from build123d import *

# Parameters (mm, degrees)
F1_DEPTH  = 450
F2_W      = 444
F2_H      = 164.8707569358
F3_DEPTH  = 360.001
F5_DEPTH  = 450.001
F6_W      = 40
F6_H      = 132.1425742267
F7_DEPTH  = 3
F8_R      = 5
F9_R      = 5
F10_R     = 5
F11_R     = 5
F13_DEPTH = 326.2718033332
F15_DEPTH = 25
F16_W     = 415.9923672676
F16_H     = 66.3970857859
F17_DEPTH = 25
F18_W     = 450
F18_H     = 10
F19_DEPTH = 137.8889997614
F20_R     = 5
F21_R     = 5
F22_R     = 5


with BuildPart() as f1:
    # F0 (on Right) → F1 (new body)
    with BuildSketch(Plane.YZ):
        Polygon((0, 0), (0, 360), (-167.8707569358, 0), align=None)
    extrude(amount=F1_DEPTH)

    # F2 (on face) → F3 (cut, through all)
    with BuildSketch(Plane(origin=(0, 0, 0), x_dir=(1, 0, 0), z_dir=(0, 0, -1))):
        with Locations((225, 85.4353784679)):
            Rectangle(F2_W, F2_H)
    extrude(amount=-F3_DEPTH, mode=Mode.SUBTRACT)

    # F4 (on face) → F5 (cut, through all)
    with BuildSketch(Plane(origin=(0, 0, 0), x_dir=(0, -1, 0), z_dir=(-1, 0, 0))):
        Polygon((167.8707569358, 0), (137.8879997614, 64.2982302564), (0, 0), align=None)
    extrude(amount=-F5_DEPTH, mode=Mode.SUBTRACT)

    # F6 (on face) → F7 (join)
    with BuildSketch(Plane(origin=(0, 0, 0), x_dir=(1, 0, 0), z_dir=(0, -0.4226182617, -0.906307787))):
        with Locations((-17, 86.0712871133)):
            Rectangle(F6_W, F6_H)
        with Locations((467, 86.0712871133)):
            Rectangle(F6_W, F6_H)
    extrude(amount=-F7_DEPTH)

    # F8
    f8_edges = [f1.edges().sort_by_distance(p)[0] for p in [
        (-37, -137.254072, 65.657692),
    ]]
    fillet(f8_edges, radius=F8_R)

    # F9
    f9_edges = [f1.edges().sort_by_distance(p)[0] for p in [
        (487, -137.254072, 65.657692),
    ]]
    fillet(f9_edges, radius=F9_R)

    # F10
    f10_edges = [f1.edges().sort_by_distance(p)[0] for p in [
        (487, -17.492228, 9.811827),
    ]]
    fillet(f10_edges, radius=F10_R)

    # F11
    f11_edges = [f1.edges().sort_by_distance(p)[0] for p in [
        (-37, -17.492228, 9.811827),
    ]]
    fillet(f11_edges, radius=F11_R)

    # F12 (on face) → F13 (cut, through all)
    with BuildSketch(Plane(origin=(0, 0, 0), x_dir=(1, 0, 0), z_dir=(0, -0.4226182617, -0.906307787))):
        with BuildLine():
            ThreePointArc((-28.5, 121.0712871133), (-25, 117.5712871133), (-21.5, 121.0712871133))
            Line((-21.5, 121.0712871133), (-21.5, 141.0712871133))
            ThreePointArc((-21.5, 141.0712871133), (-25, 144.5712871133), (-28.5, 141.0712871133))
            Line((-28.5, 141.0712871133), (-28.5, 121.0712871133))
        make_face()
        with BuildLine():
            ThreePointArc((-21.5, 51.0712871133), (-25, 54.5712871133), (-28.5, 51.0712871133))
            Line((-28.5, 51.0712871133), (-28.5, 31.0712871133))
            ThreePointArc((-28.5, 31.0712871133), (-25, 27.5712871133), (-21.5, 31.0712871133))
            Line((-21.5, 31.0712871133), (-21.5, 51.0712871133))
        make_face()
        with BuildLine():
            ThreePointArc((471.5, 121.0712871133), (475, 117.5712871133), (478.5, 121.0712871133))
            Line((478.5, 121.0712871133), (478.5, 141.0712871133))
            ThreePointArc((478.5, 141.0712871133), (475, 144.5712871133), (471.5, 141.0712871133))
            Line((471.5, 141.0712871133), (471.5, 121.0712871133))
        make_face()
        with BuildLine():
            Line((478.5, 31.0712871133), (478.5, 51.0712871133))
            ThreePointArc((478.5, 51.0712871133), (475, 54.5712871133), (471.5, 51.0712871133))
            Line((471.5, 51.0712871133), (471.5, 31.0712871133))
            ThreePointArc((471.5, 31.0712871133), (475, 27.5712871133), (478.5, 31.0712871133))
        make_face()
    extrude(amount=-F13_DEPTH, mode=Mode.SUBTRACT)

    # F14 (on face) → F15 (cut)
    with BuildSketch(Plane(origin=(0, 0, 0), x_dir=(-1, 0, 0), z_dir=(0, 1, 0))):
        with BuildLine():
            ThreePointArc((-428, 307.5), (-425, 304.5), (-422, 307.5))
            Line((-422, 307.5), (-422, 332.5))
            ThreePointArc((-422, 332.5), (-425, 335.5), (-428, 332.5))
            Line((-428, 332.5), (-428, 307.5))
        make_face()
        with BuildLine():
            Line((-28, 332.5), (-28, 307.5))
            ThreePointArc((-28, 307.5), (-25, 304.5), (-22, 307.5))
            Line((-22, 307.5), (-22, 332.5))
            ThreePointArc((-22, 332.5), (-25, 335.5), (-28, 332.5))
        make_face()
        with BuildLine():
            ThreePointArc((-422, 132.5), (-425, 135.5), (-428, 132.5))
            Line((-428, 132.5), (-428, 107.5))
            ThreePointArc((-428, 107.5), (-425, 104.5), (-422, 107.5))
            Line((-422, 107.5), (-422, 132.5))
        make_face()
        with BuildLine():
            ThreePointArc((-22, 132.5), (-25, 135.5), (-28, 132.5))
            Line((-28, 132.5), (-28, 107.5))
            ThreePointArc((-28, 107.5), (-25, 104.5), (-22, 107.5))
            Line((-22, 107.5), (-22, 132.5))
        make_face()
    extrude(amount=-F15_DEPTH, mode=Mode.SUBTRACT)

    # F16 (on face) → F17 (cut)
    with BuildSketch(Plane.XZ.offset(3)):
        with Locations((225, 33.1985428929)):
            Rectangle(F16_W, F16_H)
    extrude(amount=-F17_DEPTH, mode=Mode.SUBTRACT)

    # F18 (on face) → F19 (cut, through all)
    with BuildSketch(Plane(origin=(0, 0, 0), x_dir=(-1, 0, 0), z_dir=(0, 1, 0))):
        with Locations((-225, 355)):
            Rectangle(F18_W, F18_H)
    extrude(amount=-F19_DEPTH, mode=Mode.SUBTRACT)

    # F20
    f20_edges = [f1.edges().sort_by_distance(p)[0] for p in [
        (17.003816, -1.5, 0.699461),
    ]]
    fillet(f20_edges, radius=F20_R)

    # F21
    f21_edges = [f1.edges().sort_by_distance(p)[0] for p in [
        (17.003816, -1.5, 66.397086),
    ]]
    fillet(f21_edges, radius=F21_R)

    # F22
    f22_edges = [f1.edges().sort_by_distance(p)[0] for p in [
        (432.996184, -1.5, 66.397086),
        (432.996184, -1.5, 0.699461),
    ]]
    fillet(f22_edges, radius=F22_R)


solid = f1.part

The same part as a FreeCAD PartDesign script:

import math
import FreeCAD as App
import Part
import Sketcher
Q = App.Units.Quantity


def edges_at(feature, points):
    """Names of the edges that pass closest to the given points."""
    edges = feature.Shape.Edges
    near = lambda p: min(range(len(edges)), key=lambda i: edges[i].distToShape(Part.Vertex(*p))[0])
    return sorted({f"Edge{near(p) + 1}" for p in points})


def add_polygon(sketch, points):
    """Adds a closed chain of lines whose ends are joined by coincident constraints."""
    first, n = sketch.GeometryCount, len(points)
    for a, b in zip(points, points[1:] + points[:1]):
        sketch.addGeometry(Part.LineSegment(App.Vector(*a, 0), App.Vector(*b, 0)), False)
    for i in range(n):
        sketch.addConstraint(Sketcher.Constraint("Coincident", first + i, 2, first + (i + 1) % n, 1))

doc = App.newDocument("Part")
body = doc.addObject("PartDesign::Body", "Body")

# Sketch on YZ plane
sketch1 = body.newObject("Sketcher::SketchObject", "Sketch")
sketch1.AttachmentSupport = (doc.getObject("YZ_Plane"), [""])
sketch1.MapMode = "FlatFace"
add_polygon(sketch1, [(0, 0), (0, 360), (-167.870757, 0)])  # lines 0-2
sketch1.addConstraint([
    Sketcher.Constraint("Vertical", 0),
    Sketcher.Constraint("Horizontal", 2),
    Sketcher.Constraint("Coincident", 2, 2, -1, 1),
    Sketcher.Constraint("DistanceY", 0, 1, 0, 2, 360.0),
    Sketcher.Constraint("Angle", 1, Q("-115 deg")),
])
pad1 = body.newObject("PartDesign::Pad", "Pad")
pad1.Profile = sketch1
pad1.Length = 450

# Sketch on XY plane
sketch2 = body.newObject("Sketcher::SketchObject", "Sketch001")
sketch2.AttachmentSupport = (doc.getObject("XY_Plane"), [""])
sketch2.MapMode = "FlatFace"
add_polygon(sketch2, [(3, -167.870757), (3, -3), (447, -3), (447, -167.870757)])  # lines 0-3
sketch2.addConstraint([
    Sketcher.Constraint("Vertical", 0),
    Sketcher.Constraint("Horizontal", 1),
    Sketcher.Constraint("Vertical", 2),
    Sketcher.Constraint("Horizontal", 3),
    Sketcher.Constraint("DistanceX", 1, 1, 1, 2, 444.0),
    Sketcher.Constraint("DistanceX", -1, 1, 0, 2, 3.0),
    Sketcher.Constraint("DistanceY", 0, 2, -1, 1, 3.0),
    Sketcher.Constraint("DistanceY", 0, 1, 0, 2, 164.870757),
])
pocket1 = body.newObject("PartDesign::Pocket", "Pocket")
pocket1.Profile = sketch2
pocket1.Type = "ThroughAll"
pocket1.Reversed = True

# Sketch on YZ plane
sketch3 = body.newObject("Sketcher::SketchObject", "Sketch002")
sketch3.AttachmentSupport = (doc.getObject("YZ_Plane"), [""])
sketch3.MapMode = "FlatFace"
add_polygon(sketch3, [(-167.870757, 0), (-137.888, 64.29823), (0, 0)])  # lines 0-2
sketch3.addConstraint([
    Sketcher.Constraint("Horizontal", 2),
    Sketcher.Constraint("Coincident", 1, 2, -1, 1),
    Sketcher.Constraint("Perpendicular", 0, 1),
    Sketcher.Constraint("Angle", 0, Q("65 deg")),
    Sketcher.Constraint("DistanceX", 0, 2, -1, 1, 137.888),
])
pocket2 = body.newObject("PartDesign::Pocket", "Pocket001")
pocket2.Profile = sketch3
pocket2.Type = "ThroughAll"
pocket2.Reversed = True

# Sketch on an angled plane
sketch4 = body.newObject("Sketcher::SketchObject", "Sketch003")
sketch4.Placement = App.Placement(App.Vector(0, 0, 0), App.Rotation(App.Vector(1, 0, 0), App.Vector(0, -0.906307787, 0.422618262), App.Vector(0, -0.422618262, -0.906307787), "ZXY"))
add_polygon(sketch4, [(-37, 152.142574), (-37, 20), (3, 20), (3, 152.142574)])  # lines 0-3
add_polygon(sketch4, [(447, 152.142574), (447, 20), (487, 20), (487, 152.142574)])  # lines 4-7
sketch4.addConstraint([
    Sketcher.Constraint("Vertical", 0),
    Sketcher.Constraint("Horizontal", 1),
    Sketcher.Constraint("Vertical", 2),
    Sketcher.Constraint("Horizontal", 3),
    Sketcher.Constraint("Vertical", 4),
    Sketcher.Constraint("Horizontal", 5),
    Sketcher.Constraint("Vertical", 6),
    Sketcher.Constraint("Horizontal", 7),
    Sketcher.Constraint("Horizontal", 1, 2, 4, 2),
    Sketcher.Constraint("Horizontal", 3, 2, 6, 2),
    Sketcher.Constraint("Equal", 3, 5),
    Sketcher.Constraint("DistanceX", 1, 1, 1, 2, 40.0),
    Sketcher.Constraint("DistanceX", 0, 2, -1, 1, 37.0),
    Sketcher.Constraint("DistanceY", -1, 1, 0, 2, 20.0),
    Sketcher.Constraint("DistanceX", -1, 1, 4, 2, 447.0),
    Sketcher.Constraint("DistanceY", 0, 2, 0, 1, 132.142574),
])
pad2 = body.newObject("PartDesign::Pad", "Pad001")
pad2.Profile = sketch4
pad2.Length = 3
pad2.Reversed = True
doc.recompute()

fillet = body.newObject("PartDesign::Fillet", "Fillet")
fillet.Base = (pad2, edges_at(pad2, [(-37, -137.254, 65.658)]))
fillet.Radius = 5
doc.recompute()

fillet2 = body.newObject("PartDesign::Fillet", "Fillet001")
fillet2.Base = (fillet, edges_at(fillet, [(487, -137.254, 65.658)]))
fillet2.Radius = 5
doc.recompute()

fillet3 = body.newObject("PartDesign::Fillet", "Fillet002")
fillet3.Base = (fillet2, edges_at(fillet2, [(487, -17.492, 9.812)]))
fillet3.Radius = 5
doc.recompute()

fillet4 = body.newObject("PartDesign::Fillet", "Fillet003")
fillet4.Base = (fillet3, edges_at(fillet3, [(-37, -17.492, 9.812)]))
fillet4.Radius = 5

# Sketch on an angled plane
sketch5 = body.newObject("Sketcher::SketchObject", "Sketch004")
sketch5.Placement = App.Placement(App.Vector(0, 0, 0), App.Rotation(App.Vector(1, 0, 0), App.Vector(0, -0.906307787, 0.422618262), App.Vector(0, -0.422618262, -0.906307787), "ZXY"))
sketch5.addGeometry([
    Part.ArcOfCircle(Part.Circle(App.Vector(-25, 121.071287, 0), App.Vector(0, 0, 1), 3.5), math.radians(180), math.radians(360)),  # 0
    Part.LineSegment(App.Vector(-21.5, 121.071287, 0), App.Vector(-21.5, 141.071287, 0)),  # 1
    Part.ArcOfCircle(Part.Circle(App.Vector(-25, 141.071287, 0), App.Vector(0, 0, 1), 3.5), math.radians(0), math.radians(180)),  # 2
    Part.LineSegment(App.Vector(-28.5, 141.071287, 0), App.Vector(-28.5, 121.071287, 0)),  # 3
    Part.ArcOfCircle(Part.Circle(App.Vector(-25, 51.071287, 0), App.Vector(0, 0, 1), 3.5), math.radians(0), math.radians(180)),  # 4
    Part.LineSegment(App.Vector(-28.5, 51.071287, 0), App.Vector(-28.5, 31.071287, 0)),  # 5
    Part.ArcOfCircle(Part.Circle(App.Vector(-25, 31.071287, 0), App.Vector(0, 0, 1), 3.5), math.radians(180), math.radians(360)),  # 6
    Part.LineSegment(App.Vector(-21.5, 31.071287, 0), App.Vector(-21.5, 51.071287, 0)),  # 7
    Part.ArcOfCircle(Part.Circle(App.Vector(475, 121.071287, 0), App.Vector(0, 0, 1), 3.5), math.radians(180), math.radians(360)),  # 8
    Part.LineSegment(App.Vector(478.5, 121.071287, 0), App.Vector(478.5, 141.071287, 0)),  # 9
    Part.ArcOfCircle(Part.Circle(App.Vector(475, 141.071287, 0), App.Vector(0, 0, 1), 3.5), math.radians(0), math.radians(180)),  # 10
    Part.LineSegment(App.Vector(471.5, 141.071287, 0), App.Vector(471.5, 121.071287, 0)),  # 11
    Part.LineSegment(App.Vector(478.5, 31.071287, 0), App.Vector(478.5, 51.071287, 0)),  # 12
    Part.ArcOfCircle(Part.Circle(App.Vector(475, 51.071287, 0), App.Vector(0, 0, 1), 3.5), math.radians(0), math.radians(180)),  # 13
    Part.LineSegment(App.Vector(471.5, 51.071287, 0), App.Vector(471.5, 31.071287, 0)),  # 14
    Part.ArcOfCircle(Part.Circle(App.Vector(475, 31.071287, 0), App.Vector(0, 0, 1), 3.5), math.radians(180), math.radians(360)),  # 15
], False)
sketch5.addConstraint([
    Sketcher.Constraint("Tangent", 0, 2, 1, 1),
    Sketcher.Constraint("Tangent", 1, 2, 2, 1),
    Sketcher.Constraint("Tangent", 2, 2, 3, 1),
    Sketcher.Constraint("Tangent", 3, 2, 0, 1),
    Sketcher.Constraint("Tangent", 4, 2, 5, 1),
    Sketcher.Constraint("Tangent", 5, 2, 6, 1),
    Sketcher.Constraint("Tangent", 6, 2, 7, 1),
    Sketcher.Constraint("Tangent", 7, 2, 4, 1),
    Sketcher.Constraint("Tangent", 8, 2, 9, 1),
    Sketcher.Constraint("Tangent", 9, 2, 10, 1),
    Sketcher.Constraint("Tangent", 10, 2, 11, 1),
    Sketcher.Constraint("Tangent", 11, 2, 8, 1),
    Sketcher.Constraint("Tangent", 12, 2, 13, 1),
    Sketcher.Constraint("Tangent", 13, 2, 14, 1),
    Sketcher.Constraint("Tangent", 14, 2, 15, 1),
    Sketcher.Constraint("Tangent", 15, 2, 12, 1),
    Sketcher.Constraint("Vertical", 1),
    Sketcher.Constraint("Vertical", 3),
    Sketcher.Constraint("Vertical", 5),
    Sketcher.Constraint("Vertical", 7),
    Sketcher.Constraint("Vertical", 9),
    Sketcher.Constraint("Vertical", 11),
    Sketcher.Constraint("Vertical", 12),
    Sketcher.Constraint("Vertical", 14),
    Sketcher.Constraint("Equal", 2, 4),
    Sketcher.Constraint("Equal", 6, 8),
    Sketcher.Constraint("Equal", 10, 13),
    Sketcher.Constraint("Horizontal", 0, 3, 8, 3),
    Sketcher.Constraint("Horizontal", 2, 3, 10, 3),
    Sketcher.Constraint("Horizontal", 4, 3, 13, 3),
    Sketcher.Constraint("Horizontal", 6, 3, 15, 3),
    Sketcher.Constraint("Vertical", 2, 3, 4, 3),
    Sketcher.Constraint("Vertical", 10, 3, 13, 3),
    Sketcher.Constraint("Equal", 3, 5),
    Sketcher.Constraint("Radius", 0, 3.5),
    Sketcher.Constraint("DistanceY", 1, 1, 1, 2, 20.0),
    Sketcher.Constraint("DistanceX", 0, 3, -1, 1, 25.0),
    Sketcher.Constraint("DistanceX", -1, 1, 8, 3, 475.0),
    Sketcher.Constraint("DistanceY", 4, 3, 0, 3, 70.0),
    Sketcher.Constraint("DistanceY", -1, 1, 0, 3, 121.071287),
])
pocket3 = body.newObject("PartDesign::Pocket", "Pocket002")
pocket3.Profile = sketch5
pocket3.Type = "ThroughAll"

# Sketch on XZ plane
sketch6 = body.newObject("Sketcher::SketchObject", "Sketch005")
sketch6.AttachmentSupport = (doc.getObject("XZ_Plane"), [""])
sketch6.MapMode = "FlatFace"
sketch6.addGeometry([
    Part.ArcOfCircle(Part.Circle(App.Vector(425, 307.5, 0), App.Vector(0, 0, 1), 3), math.radians(180), math.radians(360)),  # 0
    Part.LineSegment(App.Vector(422, 307.5, 0), App.Vector(422, 332.5, 0)),  # 1
    Part.ArcOfCircle(Part.Circle(App.Vector(425, 332.5, 0), App.Vector(0, 0, 1), 3), math.radians(0), math.radians(180)),  # 2
    Part.LineSegment(App.Vector(428, 332.5, 0), App.Vector(428, 307.5, 0)),  # 3
    Part.LineSegment(App.Vector(28, 332.5, 0), App.Vector(28, 307.5, 0)),  # 4
    Part.ArcOfCircle(Part.Circle(App.Vector(25, 307.5, 0), App.Vector(0, 0, 1), 3), math.radians(180), math.radians(360)),  # 5
    Part.LineSegment(App.Vector(22, 307.5, 0), App.Vector(22, 332.5, 0)),  # 6
    Part.ArcOfCircle(Part.Circle(App.Vector(25, 332.5, 0), App.Vector(0, 0, 1), 3), math.radians(0), math.radians(180)),  # 7
    Part.ArcOfCircle(Part.Circle(App.Vector(425, 132.5, 0), App.Vector(0, 0, 1), 3), math.radians(0), math.radians(180)),  # 8
    Part.LineSegment(App.Vector(428, 132.5, 0), App.Vector(428, 107.5, 0)),  # 9
    Part.ArcOfCircle(Part.Circle(App.Vector(425, 107.5, 0), App.Vector(0, 0, 1), 3), math.radians(180), math.radians(360)),  # 10
    Part.LineSegment(App.Vector(422, 107.5, 0), App.Vector(422, 132.5, 0)),  # 11
    Part.ArcOfCircle(Part.Circle(App.Vector(25, 132.5, 0), App.Vector(0, 0, 1), 3), math.radians(0), math.radians(180)),  # 12
    Part.LineSegment(App.Vector(28, 132.5, 0), App.Vector(28, 107.5, 0)),  # 13
    Part.ArcOfCircle(Part.Circle(App.Vector(25, 107.5, 0), App.Vector(0, 0, 1), 3), math.radians(180), math.radians(360)),  # 14
    Part.LineSegment(App.Vector(22, 107.5, 0), App.Vector(22, 132.5, 0)),  # 15
], False)
sketch6.addConstraint([
    Sketcher.Constraint("Tangent", 0, 1, 1, 1),
    Sketcher.Constraint("Tangent", 1, 2, 2, 2),
    Sketcher.Constraint("Tangent", 2, 1, 3, 1),
    Sketcher.Constraint("Tangent", 3, 2, 0, 2),
    Sketcher.Constraint("Tangent", 4, 2, 5, 2),
    Sketcher.Constraint("Tangent", 5, 1, 6, 1),
    Sketcher.Constraint("Tangent", 6, 2, 7, 2),
    Sketcher.Constraint("Tangent", 7, 1, 4, 1),
    Sketcher.Constraint("Tangent", 8, 1, 9, 1),
    Sketcher.Constraint("Tangent", 9, 2, 10, 2),
    Sketcher.Constraint("Tangent", 10, 1, 11, 1),
    Sketcher.Constraint("Tangent", 11, 2, 8, 2),
    Sketcher.Constraint("Tangent", 12, 1, 13, 1),
    Sketcher.Constraint("Tangent", 13, 2, 14, 2),
    Sketcher.Constraint("Tangent", 14, 1, 15, 1),
    Sketcher.Constraint("Tangent", 15, 2, 12, 2),
    Sketcher.Constraint("Vertical", 1),
    Sketcher.Constraint("Vertical", 3),
    Sketcher.Constraint("Vertical", 4),
    Sketcher.Constraint("Vertical", 6),
    Sketcher.Constraint("Vertical", 9),
    Sketcher.Constraint("Vertical", 11),
    Sketcher.Constraint("Vertical", 13),
    Sketcher.Constraint("Vertical", 15),
    Sketcher.Constraint("Equal", 2, 5),
    Sketcher.Constraint("Equal", 7, 8),
    Sketcher.Constraint("Equal", 10, 12),
    Sketcher.Constraint("Horizontal", 0, 3, 5, 3),
    Sketcher.Constraint("Horizontal", 2, 3, 7, 3),
    Sketcher.Constraint("Horizontal", 8, 3, 12, 3),
    Sketcher.Constraint("Horizontal", 10, 3, 14, 3),
    Sketcher.Constraint("Vertical", 2, 3, 8, 3),
    Sketcher.Constraint("Vertical", 7, 3, 12, 3),
    Sketcher.Constraint("Equal", 6, 9),
    Sketcher.Constraint("Radius", 0, 3.0),
    Sketcher.Constraint("DistanceY", 1, 1, 1, 2, 25.0),
    Sketcher.Constraint("DistanceX", -1, 1, 0, 3, 425.0),
    Sketcher.Constraint("DistanceX", -1, 1, 5, 3, 25.0),
    Sketcher.Constraint("DistanceY", 8, 3, 0, 3, 175.0),
    Sketcher.Constraint("DistanceY", -1, 1, 0, 3, 307.5),
])
pocket4 = body.newObject("PartDesign::Pocket", "Pocket003")
pocket4.Profile = sketch6
pocket4.Length = 25
pocket4.Reversed = True

# Sketch on XZ plane
sketch7 = body.newObject("Sketcher::SketchObject", "Sketch006")
sketch7.AttachmentSupport = (doc.getObject("XZ_Plane"), [""])
sketch7.MapMode = "FlatFace"
sketch7.AttachmentOffset = App.Placement(App.Vector(0, 0, 3), App.Rotation())
add_polygon(sketch7, [(17.003816, 66.397086), (17.003816, 0), (432.996184, 0), (432.996184, 66.397086)])  # lines 0-3
sketch7.addConstraint([
    Sketcher.Constraint("Vertical", 0),
    Sketcher.Constraint("Horizontal", 1),
    Sketcher.Constraint("Vertical", 2),
    Sketcher.Constraint("Horizontal", 3),
    Sketcher.Constraint("PointOnObject", 0, 2, -1),
    Sketcher.Constraint("DistanceX", 1, 1, 1, 2, 415.992367),
    Sketcher.Constraint("DistanceY", 0, 2, 0, 1, 66.397086),
    Sketcher.Constraint("DistanceX", -1, 1, 0, 2, 17.003816),
])
pocket5 = body.newObject("PartDesign::Pocket", "Pocket004")
pocket5.Profile = sketch7
pocket5.Length = 25

# Sketch on XZ plane
sketch8 = body.newObject("Sketcher::SketchObject", "Sketch007")
sketch8.AttachmentSupport = (doc.getObject("XZ_Plane"), [""])
sketch8.MapMode = "FlatFace"
add_polygon(sketch8, [(450, 360), (450, 350), (0, 350), (0, 360)])  # lines 0-3
sketch8.addConstraint([
    Sketcher.Constraint("Vertical", 0),
    Sketcher.Constraint("Horizontal", 1),
    Sketcher.Constraint("Vertical", 2),
    Sketcher.Constraint("Horizontal", 3),
    Sketcher.Constraint("PointOnObject", 1, 2, -2),
    Sketcher.Constraint("DistanceX", 1, 2, 1, 1, 450.0),
    Sketcher.Constraint("DistanceY", 0, 2, 0, 1, 10.0),
    Sketcher.Constraint("DistanceY", -1, 1, 0, 2, 350.0),
])
pocket6 = body.newObject("PartDesign::Pocket", "Pocket005")
pocket6.Profile = sketch8
pocket6.Type = "ThroughAll"
pocket6.Reversed = True
doc.recompute()

fillet5 = body.newObject("PartDesign::Fillet", "Fillet004")
fillet5.Base = (pocket6, edges_at(pocket6, [(17.004, -1.5, 0.699)]))
fillet5.Radius = 5
doc.recompute()

fillet6 = body.newObject("PartDesign::Fillet", "Fillet005")
fillet6.Base = (fillet5, edges_at(fillet5, [(17.004, -1.5, 66.397)]))
fillet6.Radius = 5
doc.recompute()

fillet7 = body.newObject("PartDesign::Fillet", "Fillet006")
fillet7.Base = (fillet6, edges_at(fillet6, [(432.996, -1.5, 66.397), (432.996, -1.5, 0.699)]))
fillet7.Radius = 5

doc.recompute()
